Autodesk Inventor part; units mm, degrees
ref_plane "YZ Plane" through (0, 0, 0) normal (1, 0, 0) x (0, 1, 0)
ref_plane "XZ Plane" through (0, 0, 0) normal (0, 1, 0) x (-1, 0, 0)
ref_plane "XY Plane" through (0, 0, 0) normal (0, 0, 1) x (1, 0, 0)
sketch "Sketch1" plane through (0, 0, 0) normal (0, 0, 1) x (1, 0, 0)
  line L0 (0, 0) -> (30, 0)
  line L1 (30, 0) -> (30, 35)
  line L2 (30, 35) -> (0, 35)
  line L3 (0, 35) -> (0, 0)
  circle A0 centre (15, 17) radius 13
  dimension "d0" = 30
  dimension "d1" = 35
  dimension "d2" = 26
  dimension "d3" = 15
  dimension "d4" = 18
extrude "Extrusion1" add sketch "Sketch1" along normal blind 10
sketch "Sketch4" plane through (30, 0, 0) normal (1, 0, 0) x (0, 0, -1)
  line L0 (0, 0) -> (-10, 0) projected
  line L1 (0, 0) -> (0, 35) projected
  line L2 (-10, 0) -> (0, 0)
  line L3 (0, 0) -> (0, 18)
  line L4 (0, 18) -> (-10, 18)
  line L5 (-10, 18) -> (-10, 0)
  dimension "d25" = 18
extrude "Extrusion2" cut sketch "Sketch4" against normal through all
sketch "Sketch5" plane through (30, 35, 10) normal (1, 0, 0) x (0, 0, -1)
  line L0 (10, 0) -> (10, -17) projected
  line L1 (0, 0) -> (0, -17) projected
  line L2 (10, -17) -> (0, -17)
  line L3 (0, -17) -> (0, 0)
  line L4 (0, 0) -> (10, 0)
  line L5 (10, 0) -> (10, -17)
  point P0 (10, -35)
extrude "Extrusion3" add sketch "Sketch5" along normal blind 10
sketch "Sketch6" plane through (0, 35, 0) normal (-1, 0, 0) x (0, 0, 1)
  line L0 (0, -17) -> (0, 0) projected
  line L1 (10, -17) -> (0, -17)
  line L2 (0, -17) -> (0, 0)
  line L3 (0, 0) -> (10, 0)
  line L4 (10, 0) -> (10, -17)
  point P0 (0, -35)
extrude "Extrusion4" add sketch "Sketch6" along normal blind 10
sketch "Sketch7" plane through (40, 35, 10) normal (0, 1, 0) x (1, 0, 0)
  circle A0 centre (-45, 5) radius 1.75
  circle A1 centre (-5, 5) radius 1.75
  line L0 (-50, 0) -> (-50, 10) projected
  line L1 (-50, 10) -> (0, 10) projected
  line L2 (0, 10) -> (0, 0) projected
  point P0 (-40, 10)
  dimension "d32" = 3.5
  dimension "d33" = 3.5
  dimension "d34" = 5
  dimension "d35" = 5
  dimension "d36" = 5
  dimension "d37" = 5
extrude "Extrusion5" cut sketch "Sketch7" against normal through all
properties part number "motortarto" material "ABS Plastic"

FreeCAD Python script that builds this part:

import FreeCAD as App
import Part
import Sketcher
from FreeCAD import Vector
Q = App.Units.Quantity


def add_polygon(sketch, points):
    """Adds a closed chain of lines whose ends are joined by coincident constraints."""
    first, n = sketch.GeometryCount, len(points)
    for a, b in zip(points, points[1:] + points[:1]):
        sketch.addGeometry(Part.LineSegment(App.Vector(*a, 0), App.Vector(*b, 0)), False)
    for i in range(n):
        sketch.addConstraint(Sketcher.Constraint("Coincident", first + i, 2, first + (i + 1) % n, 1))

doc = App.newDocument("Part")
body = doc.addObject("PartDesign::Body", "Body")

# Sketch on XY plane
sketch1 = body.newObject("Sketcher::SketchObject", "Sketch")
sketch1.AttachmentSupport = (doc.getObject("XY_Plane"), [""])
sketch1.MapMode = "FlatFace"
add_polygon(sketch1, [(0, 35), (0, 0), (30, 0), (30, 35)])  # lines 0-3
sketch1.addGeometry(Part.Circle(Vector(15, 17, 0), Vector(0, 0, 1), 13), False)  # 4
sketch1.addConstraint([
    Sketcher.Constraint("Vertical", 0),
    Sketcher.Constraint("Horizontal", 1),
    Sketcher.Constraint("Vertical", 2),
    Sketcher.Constraint("Horizontal", 3),
    Sketcher.Constraint("Coincident", 0, 2, -1, 1),
    Sketcher.Constraint("Diameter", 4, Q("26 mm")),
    Sketcher.Constraint("DistanceX", 1, 1, 1, 2, Q("30 mm")),
    Sketcher.Constraint("DistanceY", 0, 2, 0, 1, Q("35 mm")),
    Sketcher.Constraint("DistanceX", -1, 1, 4, 3, Q("15 mm")),
    Sketcher.Constraint("DistanceY", 4, 3, 2, 2, Q("18 mm")),
])
pad1 = body.newObject("PartDesign::Pad", "Pad")
pad1.Profile = sketch1
pad1.Length = 10

# Sketch on YZ plane
sketch2 = body.newObject("Sketcher::SketchObject", "Sketch001")
sketch2.AttachmentSupport = (doc.getObject("YZ_Plane"), [""])
sketch2.MapMode = "FlatFace"
sketch2.AttachmentOffset = App.Placement(Vector(0, 0, 30), App.Rotation())
add_polygon(sketch2, [(0, 10), (0, 0), (18, 0), (18, 10)])  # lines 0-3
sketch2.addConstraint([
    Sketcher.Constraint("Vertical", 0),
    Sketcher.Constraint("Horizontal", 1),
    Sketcher.Constraint("Vertical", 2),
    Sketcher.Constraint("Horizontal", 3),
    Sketcher.Constraint("Coincident", 0, 2, -1, 1),
    Sketcher.Constraint("DistanceX", 1, 1, 1, 2, Q("18 mm")),
    Sketcher.Constraint("DistanceY", 0, 2, 0, 1, Q("10 mm")),
])
pocket1 = body.newObject("PartDesign::Pocket", "Pocket")
pocket1.Profile = sketch2
pocket1.Type = "ThroughAll"

# Sketch on YZ plane
sketch3 = body.newObject("Sketcher::SketchObject", "Sketch002")
sketch3.AttachmentSupport = (doc.getObject("YZ_Plane"), [""])
sketch3.MapMode = "FlatFace"
sketch3.AttachmentOffset = App.Placement(Vector(0, 0, 30), App.Rotation())
add_polygon(sketch3, [(18, 0), (35, 0), (35, 10), (18, 10)])  # lines 0-3
sketch3.addConstraint([
    Sketcher.Constraint("Horizontal", 0),
    Sketcher.Constraint("Vertical", 1),
    Sketcher.Constraint("Horizontal", 2),
    Sketcher.Constraint("Vertical", 3),
    Sketcher.Constraint("PointOnObject", 0, 2, -1),
    Sketcher.Constraint("DistanceX", 0, 1, 0, 2, Q("17 mm")),
    Sketcher.Constraint("DistanceY", 1, 1, 1, 2, Q("10 mm")),
    Sketcher.Constraint("DistanceX", -1, 1, 0, 2, Q("35 mm")),
])
pad2 = body.newObject("PartDesign::Pad", "Pad001")
pad2.Profile = sketch3
pad2.Length = 10

# Sketch on YZ plane
sketch4 = body.newObject("Sketcher::SketchObject", "Sketch003")
sketch4.AttachmentSupport = (doc.getObject("YZ_Plane"), [""])
sketch4.MapMode = "FlatFace"
add_polygon(sketch4, [(35, 0), (18, 0), (18, 10), (35, 10)])  # lines 0-3
sketch4.addConstraint([
    Sketcher.Constraint("Horizontal", 0),
    Sketcher.Constraint("Vertical", 1),
    Sketcher.Constraint("Horizontal", 2),
    Sketcher.Constraint("Vertical", 3),
    Sketcher.Constraint("PointOnObject", 0, 2, -1),
    Sketcher.Constraint("DistanceX", 0, 2, 0, 1, Q("17 mm")),
    Sketcher.Constraint("DistanceY", 1, 1, 1, 2, Q("10 mm")),
    Sketcher.Constraint("DistanceX", -1, 1, 0, 2, Q("18 mm")),
])
pad3 = body.newObject("PartDesign::Pad", "Pad002")
pad3.Profile = sketch4
pad3.Length = 10
pad3.Reversed = True

# Sketch on XZ plane
sketch5 = body.newObject("Sketcher::SketchObject", "Sketch004")
sketch5.AttachmentSupport = (doc.getObject("XZ_Plane"), [""])
sketch5.MapMode = "FlatFace"
sketch5.AttachmentOffset = App.Placement(Vector(0, 0, -35), App.Rotation())
sketch5.addGeometry([
    Part.Circle(Vector(-5, 5, 0), Vector(0, 0, 1), 1.8),
    Part.Circle(Vector(35, 5, 0), Vector(0, 0, 1), 1.8),
], False)
sketch5.addConstraint([
    Sketcher.Constraint("Equal", 0, 1),
    Sketcher.Constraint("Horizontal", 0, 3, 1, 3),
    Sketcher.Constraint("Diameter", 0, Q("3.5 mm")),
    Sketcher.Constraint("DistanceX", 0, 3, -1, 1, Q("5 mm")),
    Sketcher.Constraint("DistanceY", -1, 1, 0, 3, Q("5 mm")),
    Sketcher.Constraint("DistanceX", -1, 1, 1, 3, Q("35 mm")),
])
pocket2 = body.newObject("PartDesign::Pocket", "Pocket001")
pocket2.Profile = sketch5
pocket2.Type = "ThroughAll"
pocket2.Reversed = True

doc.recompute()
